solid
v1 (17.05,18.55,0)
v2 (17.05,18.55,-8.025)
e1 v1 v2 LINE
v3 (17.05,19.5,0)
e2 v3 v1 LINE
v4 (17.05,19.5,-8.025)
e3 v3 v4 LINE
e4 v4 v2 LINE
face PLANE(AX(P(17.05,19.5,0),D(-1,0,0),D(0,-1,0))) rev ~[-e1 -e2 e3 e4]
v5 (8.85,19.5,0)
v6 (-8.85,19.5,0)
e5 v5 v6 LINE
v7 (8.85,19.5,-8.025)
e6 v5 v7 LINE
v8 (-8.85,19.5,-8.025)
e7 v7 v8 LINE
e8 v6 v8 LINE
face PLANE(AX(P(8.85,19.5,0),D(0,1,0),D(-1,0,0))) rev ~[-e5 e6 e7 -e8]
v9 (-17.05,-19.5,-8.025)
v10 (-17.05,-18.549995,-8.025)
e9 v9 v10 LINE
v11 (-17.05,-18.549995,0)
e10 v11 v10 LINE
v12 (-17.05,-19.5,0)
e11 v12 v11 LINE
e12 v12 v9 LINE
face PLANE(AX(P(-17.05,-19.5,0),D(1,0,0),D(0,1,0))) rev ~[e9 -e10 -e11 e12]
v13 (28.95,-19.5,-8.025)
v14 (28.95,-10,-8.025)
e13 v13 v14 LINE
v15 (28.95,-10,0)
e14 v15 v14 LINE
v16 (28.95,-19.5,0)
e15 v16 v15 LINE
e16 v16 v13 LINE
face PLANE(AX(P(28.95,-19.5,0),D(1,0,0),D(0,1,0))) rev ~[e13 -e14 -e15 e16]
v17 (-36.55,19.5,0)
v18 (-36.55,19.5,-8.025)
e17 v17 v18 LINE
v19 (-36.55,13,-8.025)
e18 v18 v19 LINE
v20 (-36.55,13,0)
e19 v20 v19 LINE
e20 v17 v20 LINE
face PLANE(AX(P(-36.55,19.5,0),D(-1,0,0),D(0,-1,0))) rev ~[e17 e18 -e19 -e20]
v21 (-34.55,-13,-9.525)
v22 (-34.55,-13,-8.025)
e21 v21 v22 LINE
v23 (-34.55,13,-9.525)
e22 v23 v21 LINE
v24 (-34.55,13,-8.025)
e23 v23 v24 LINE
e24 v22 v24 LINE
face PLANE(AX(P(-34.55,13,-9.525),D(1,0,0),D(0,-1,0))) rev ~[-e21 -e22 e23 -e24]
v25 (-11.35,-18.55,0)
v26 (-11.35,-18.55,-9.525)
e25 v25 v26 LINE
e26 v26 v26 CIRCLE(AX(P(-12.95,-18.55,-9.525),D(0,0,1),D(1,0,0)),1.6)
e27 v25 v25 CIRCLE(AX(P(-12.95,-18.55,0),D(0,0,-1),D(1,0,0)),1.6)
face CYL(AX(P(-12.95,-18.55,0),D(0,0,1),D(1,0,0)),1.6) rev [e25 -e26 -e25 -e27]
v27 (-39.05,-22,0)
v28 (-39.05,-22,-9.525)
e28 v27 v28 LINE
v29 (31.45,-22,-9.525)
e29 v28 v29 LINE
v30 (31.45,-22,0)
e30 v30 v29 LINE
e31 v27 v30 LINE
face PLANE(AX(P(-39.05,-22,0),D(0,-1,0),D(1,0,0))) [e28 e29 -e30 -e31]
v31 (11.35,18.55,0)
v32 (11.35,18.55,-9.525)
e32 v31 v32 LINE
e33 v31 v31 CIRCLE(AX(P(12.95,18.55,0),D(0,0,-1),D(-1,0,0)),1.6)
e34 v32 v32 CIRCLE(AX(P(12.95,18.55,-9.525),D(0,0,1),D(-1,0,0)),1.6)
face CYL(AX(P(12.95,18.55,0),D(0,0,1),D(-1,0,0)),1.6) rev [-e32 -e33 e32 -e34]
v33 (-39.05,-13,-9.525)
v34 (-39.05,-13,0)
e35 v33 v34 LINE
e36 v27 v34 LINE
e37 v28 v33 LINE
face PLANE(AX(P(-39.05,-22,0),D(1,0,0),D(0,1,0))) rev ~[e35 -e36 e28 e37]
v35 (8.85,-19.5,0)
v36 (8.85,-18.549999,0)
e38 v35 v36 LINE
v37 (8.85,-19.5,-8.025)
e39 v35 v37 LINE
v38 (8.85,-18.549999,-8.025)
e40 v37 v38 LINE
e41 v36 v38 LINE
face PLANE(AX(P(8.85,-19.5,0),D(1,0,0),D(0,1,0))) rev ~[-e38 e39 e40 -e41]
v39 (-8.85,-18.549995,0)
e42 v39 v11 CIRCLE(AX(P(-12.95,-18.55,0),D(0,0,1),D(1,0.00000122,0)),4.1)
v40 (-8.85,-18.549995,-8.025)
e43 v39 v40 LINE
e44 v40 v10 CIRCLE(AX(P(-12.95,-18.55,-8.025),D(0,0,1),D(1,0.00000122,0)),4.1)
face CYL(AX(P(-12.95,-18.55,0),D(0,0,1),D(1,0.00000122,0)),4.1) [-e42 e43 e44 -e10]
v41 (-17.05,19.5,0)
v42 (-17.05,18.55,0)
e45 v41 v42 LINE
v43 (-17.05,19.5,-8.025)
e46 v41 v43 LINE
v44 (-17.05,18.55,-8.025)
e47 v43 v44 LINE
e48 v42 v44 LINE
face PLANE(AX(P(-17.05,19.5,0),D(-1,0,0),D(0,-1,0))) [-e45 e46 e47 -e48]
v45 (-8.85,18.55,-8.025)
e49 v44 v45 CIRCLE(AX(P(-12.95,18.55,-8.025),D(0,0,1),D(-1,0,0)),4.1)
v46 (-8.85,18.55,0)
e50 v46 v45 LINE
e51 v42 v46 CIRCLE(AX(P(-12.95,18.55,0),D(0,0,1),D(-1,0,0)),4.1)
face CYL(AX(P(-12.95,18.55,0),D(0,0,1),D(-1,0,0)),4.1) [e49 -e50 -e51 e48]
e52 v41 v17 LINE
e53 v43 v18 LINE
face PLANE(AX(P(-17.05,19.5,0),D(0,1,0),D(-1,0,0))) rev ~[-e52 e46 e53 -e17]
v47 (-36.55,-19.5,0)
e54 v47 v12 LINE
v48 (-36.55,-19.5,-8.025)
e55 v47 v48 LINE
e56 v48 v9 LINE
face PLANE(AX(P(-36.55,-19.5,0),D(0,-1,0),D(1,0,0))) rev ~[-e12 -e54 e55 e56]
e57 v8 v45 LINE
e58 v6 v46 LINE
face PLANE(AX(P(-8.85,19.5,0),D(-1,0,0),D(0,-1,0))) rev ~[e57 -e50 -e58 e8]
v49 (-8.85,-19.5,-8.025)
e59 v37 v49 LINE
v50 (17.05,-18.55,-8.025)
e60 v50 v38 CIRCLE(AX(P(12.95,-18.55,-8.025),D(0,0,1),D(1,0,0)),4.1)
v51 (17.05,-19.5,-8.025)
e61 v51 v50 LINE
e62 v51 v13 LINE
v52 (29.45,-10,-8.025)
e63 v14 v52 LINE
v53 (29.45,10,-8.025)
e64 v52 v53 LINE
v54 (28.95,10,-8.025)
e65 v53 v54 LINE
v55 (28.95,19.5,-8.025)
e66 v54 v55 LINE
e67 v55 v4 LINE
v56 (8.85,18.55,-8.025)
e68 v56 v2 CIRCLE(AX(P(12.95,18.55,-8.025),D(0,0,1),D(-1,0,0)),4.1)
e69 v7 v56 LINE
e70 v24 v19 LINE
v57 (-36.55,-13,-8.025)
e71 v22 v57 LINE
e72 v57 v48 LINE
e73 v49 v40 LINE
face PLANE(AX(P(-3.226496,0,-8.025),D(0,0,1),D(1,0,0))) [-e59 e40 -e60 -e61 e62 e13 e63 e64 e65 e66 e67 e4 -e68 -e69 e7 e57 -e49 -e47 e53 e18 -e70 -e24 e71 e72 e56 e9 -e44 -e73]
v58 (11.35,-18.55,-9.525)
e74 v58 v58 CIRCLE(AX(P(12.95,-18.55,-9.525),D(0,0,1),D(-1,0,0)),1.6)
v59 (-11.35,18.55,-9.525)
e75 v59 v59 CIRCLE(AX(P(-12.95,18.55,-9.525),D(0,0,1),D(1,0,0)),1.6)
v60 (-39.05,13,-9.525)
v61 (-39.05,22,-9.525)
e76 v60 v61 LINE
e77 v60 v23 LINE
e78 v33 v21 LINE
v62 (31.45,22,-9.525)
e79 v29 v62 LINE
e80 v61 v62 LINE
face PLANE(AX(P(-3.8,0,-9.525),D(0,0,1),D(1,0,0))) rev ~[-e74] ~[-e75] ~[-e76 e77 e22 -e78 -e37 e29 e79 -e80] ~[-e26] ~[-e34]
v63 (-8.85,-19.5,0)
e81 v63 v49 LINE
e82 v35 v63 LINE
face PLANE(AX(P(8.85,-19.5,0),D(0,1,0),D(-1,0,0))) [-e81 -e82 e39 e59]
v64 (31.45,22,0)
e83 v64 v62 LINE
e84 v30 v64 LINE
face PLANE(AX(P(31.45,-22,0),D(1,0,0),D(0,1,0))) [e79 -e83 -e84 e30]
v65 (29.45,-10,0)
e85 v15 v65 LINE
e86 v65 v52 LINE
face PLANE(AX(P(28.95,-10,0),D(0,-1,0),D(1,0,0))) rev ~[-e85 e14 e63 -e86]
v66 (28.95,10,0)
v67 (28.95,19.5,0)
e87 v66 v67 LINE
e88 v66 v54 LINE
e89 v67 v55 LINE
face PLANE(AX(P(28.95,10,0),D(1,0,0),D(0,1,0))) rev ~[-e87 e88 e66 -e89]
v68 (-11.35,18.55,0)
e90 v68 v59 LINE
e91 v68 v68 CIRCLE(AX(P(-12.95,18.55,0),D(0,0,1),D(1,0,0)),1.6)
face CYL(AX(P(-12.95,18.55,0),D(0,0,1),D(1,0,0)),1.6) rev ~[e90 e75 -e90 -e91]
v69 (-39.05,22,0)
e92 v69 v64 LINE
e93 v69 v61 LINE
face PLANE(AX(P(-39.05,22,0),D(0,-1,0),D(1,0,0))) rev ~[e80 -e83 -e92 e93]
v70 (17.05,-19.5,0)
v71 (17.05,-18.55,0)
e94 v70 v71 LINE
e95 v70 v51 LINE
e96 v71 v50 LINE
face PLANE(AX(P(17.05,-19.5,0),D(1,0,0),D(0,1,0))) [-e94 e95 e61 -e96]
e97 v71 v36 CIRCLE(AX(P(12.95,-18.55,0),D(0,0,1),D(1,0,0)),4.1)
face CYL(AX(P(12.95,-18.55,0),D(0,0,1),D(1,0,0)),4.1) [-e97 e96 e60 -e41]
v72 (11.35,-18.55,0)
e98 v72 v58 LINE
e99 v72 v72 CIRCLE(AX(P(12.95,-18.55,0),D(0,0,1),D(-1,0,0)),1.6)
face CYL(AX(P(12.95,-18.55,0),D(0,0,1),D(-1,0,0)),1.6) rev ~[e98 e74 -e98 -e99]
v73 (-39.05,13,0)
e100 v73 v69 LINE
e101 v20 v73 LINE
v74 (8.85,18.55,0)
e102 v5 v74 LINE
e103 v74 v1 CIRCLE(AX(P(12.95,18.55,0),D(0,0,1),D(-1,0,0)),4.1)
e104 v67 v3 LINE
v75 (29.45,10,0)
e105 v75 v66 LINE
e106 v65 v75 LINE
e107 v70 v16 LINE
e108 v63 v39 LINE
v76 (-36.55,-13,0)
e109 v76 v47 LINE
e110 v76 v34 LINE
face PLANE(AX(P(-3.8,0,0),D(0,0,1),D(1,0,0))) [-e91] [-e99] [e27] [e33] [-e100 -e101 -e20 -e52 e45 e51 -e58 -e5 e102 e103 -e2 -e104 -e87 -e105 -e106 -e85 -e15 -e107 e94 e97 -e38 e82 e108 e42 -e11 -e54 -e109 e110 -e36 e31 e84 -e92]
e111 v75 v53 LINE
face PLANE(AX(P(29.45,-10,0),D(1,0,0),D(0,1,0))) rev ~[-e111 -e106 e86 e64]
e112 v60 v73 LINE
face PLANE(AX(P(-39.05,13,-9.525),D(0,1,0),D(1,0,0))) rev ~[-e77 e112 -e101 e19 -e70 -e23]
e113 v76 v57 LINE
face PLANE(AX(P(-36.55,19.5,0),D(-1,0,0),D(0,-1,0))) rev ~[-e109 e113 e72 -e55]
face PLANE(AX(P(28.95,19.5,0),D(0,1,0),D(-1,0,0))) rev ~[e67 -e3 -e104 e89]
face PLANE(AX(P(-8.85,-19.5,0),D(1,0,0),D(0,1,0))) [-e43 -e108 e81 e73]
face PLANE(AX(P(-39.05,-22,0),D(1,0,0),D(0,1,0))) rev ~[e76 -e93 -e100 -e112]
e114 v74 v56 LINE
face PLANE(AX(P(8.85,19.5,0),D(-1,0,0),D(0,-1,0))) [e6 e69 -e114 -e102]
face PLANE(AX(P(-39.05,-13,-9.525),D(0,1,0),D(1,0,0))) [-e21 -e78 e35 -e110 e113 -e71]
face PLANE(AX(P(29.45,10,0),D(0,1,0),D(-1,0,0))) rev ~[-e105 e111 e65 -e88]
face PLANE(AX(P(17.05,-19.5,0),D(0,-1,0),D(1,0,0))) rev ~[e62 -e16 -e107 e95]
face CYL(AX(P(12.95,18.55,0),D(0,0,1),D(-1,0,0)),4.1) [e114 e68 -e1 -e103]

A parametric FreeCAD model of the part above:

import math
import FreeCAD as App
import Part
import Sketcher

V = App.Vector
Q = App.Units.Quantity


def add_polygon(sketch, points):
    """Adds a closed chain of lines whose ends are joined by coincident constraints."""
    first, n = sketch.GeometryCount, len(points)
    for a, b in zip(points, points[1:] + points[:1]):
        sketch.addGeometry(Part.LineSegment(App.Vector(*a, 0), App.Vector(*b, 0)), False)
    for i in range(n):
        sketch.addConstraint(Sketcher.Constraint("Coincident", first + i, 2, first + (i + 1) % n, 1))

doc = App.newDocument("Part")
body = doc.addObject("PartDesign::Body", "Body")

# Sketch on XY plane
sketch1 = doc.addObject("Sketcher::SketchObject", "Sketch")
body.addObject(sketch1)
sketch1.AttachmentSupport = (doc.XY_Plane, [""])
sketch1.MapMode = "FlatFace"
add_polygon(sketch1, [(-39, 22), (-39, -22), (31, -22), (31, 22)])  # lines 0-3
sketch1.addConstraint([
    Sketcher.Constraint("Vertical", 0),
    Sketcher.Constraint("Horizontal", 1),
    Sketcher.Constraint("Vertical", 2),
    Sketcher.Constraint("Horizontal", 3),
    Sketcher.Constraint("DistanceY", 0, 2, 0, 1, Q("44 mm")),
    Sketcher.Constraint("DistanceX", 1, 1, 1, 2, Q("70.5 mm")),
    Sketcher.Constraint("DistanceY", 0, 2, -1, 1, Q("22 mm")),
    Sketcher.Constraint("DistanceX", 0, 2, -1, 1, Q("39.05 mm")),
])
pad1 = doc.addObject("PartDesign::Pad", "Pad")
body.addObject(pad1)
pad1.Profile = sketch1
pad1.Length = 9.525
pad1.Reversed = True

# Sketch on XY plane
sketch2 = doc.addObject("Sketcher::SketchObject", "Sketch001")
body.addObject(sketch2)
sketch2.AttachmentSupport = (doc.XY_Plane, [""])
sketch2.MapMode = "FlatFace"
sketch2.addGeometry(Part.Circle(V(-12.9, 18.6, 0), V(0, 0, 1), 1.6), False)
sketch2.addConstraint([
    Sketcher.Constraint("Diameter", 0, Q("3.2 mm")),
    Sketcher.Constraint("DistanceX", 0, 3, -1, 1, Q("12.95 mm")),
    Sketcher.Constraint("DistanceY", -1, 1, 0, 3, Q("18.55 mm")),
])
pocket1 = doc.addObject("PartDesign::Pocket", "Pocket")
body.addObject(pocket1)
pocket1.Profile = sketch2
pocket1.Type = "ThroughAll"

# Sketch on XY plane
sketch3 = doc.addObject("Sketcher::SketchObject", "Sketch002")
body.addObject(sketch3)
sketch3.AttachmentSupport = (doc.XY_Plane, [""])
sketch3.MapMode = "FlatFace"
sketch3.addGeometry(Part.Circle(V(12.9, 18.6, 0), V(0, 0, 1), 1.6), False)
sketch3.addConstraint([
    Sketcher.Constraint("Diameter", 0, Q("3.2 mm")),
    Sketcher.Constraint("DistanceX", -1, 1, 0, 3, Q("12.95 mm")),
    Sketcher.Constraint("DistanceY", -1, 1, 0, 3, Q("18.55 mm")),
])
pocket2 = doc.addObject("PartDesign::Pocket", "Pocket001")
body.addObject(pocket2)
pocket2.Profile = sketch3
pocket2.Type = "ThroughAll"
doc.recompute()

mirrored = doc.addObject("PartDesign::Mirrored", "Mirrored")
body.addObject(mirrored)
mirrored.Originals = [pocket1, pocket2]
mirrored.MirrorPlane = (doc.XZ_Plane, [""])
body.Tip = mirrored

# Sketch on XY plane
sketch4 = doc.addObject("Sketcher::SketchObject", "Sketch003")
body.addObject(sketch4)
sketch4.AttachmentSupport = (doc.XY_Plane, [""])
sketch4.MapMode = "FlatFace"
sketch4.addGeometry([
    Part.LineSegment(V(29.4, -10, 0), V(29.4, 10, 0)),  # 0
    Part.LineSegment(V(29.4, 10, 0), V(28.9, 10, 0)),  # 1
    Part.LineSegment(V(28.9, 10, 0), V(28.9, 19.5, 0)),  # 2
    Part.LineSegment(V(28.9, 19.5, 0), V(17.1, 19.5, 0)),  # 3
    Part.LineSegment(V(17.1, 19.5, 0), V(17.1, 18.6, 0)),  # 4
    Part.ArcOfCircle(Part.Circle(V(12.9, 18.6, 0), V(0, 0, 1), 4.1), math.radians(180), math.radians(360)),  # 5
    Part.LineSegment(V(8.8, 18.6, 0), V(8.8, 19.5, 0)),  # 6
    Part.LineSegment(V(8.8, 19.5, 0), V(-8.8, 19.5, 0)),  # 7
    Part.LineSegment(V(-8.8, 19.5, 0), V(-8.8, 18.6, 0)),  # 8
    Part.ArcOfCircle(Part.Circle(V(-12.9, 18.6, 0), V(0, 0, 1), 4.1), math.radians(180), math.radians(360)),  # 9
    Part.LineSegment(V(-17.1, 18.6, 0), V(-17.1, 19.5, 0)),  # 10
    Part.LineSegment(V(-17.1, 19.5, 0), V(-36.5, 19.5, 0)),  # 11
    Part.LineSegment(V(-36.5, 19.5, 0), V(-36.5, -19.5, 0)),  # 12
    Part.LineSegment(V(-36.5, -19.5, 0), V(-17.1, -19.5, 0)),  # 13
    Part.LineSegment(V(-17.1, -19.5, 0), V(-17.1, -18.5, 0)),  # 14
    Part.ArcOfCircle(Part.Circle(V(-12.9, -18.6, 0), V(0, 0, 1), 4.1), math.radians(0), math.radians(180)),  # 15
    Part.LineSegment(V(-8.8, -18.5, 0), V(-8.8, -19.5, 0)),  # 16
    Part.LineSegment(V(-8.8, -19.5, 0), V(8.8, -19.5, 0)),  # 17
    Part.LineSegment(V(8.8, -19.5, 0), V(8.8, -18.5, 0)),  # 18
    Part.ArcOfCircle(Part.Circle(V(12.9, -18.6, 0), V(0, 0, 1), 4.1), math.radians(0), math.radians(180)),  # 19
    Part.LineSegment(V(17.1, -18.6, 0), V(17.1, -19.5, 0)),  # 20
    Part.LineSegment(V(17.1, -19.5, 0), V(28.9, -19.5, 0)),  # 21
    Part.LineSegment(V(28.9, -19.5, 0), V(28.9, -10, 0)),  # 22
    Part.LineSegment(V(28.9, -10, 0), V(29.4, -10, 0)),  # 23
], False)
sketch4.addConstraint([
    Sketcher.Constraint("Coincident", 0, 2, 1, 1),
    Sketcher.Constraint("Coincident", 1, 2, 2, 1),
    Sketcher.Constraint("Coincident", 2, 2, 3, 1),
    Sketcher.Constraint("Coincident", 3, 2, 4, 1),
    Sketcher.Constraint("Tangent", 4, 2, 5, 2),
    Sketcher.Constraint("Tangent", 5, 1, 6, 1),
    Sketcher.Constraint("Coincident", 6, 2, 7, 1),
    Sketcher.Constraint("Coincident", 7, 2, 8, 1),
    Sketcher.Constraint("Tangent", 8, 2, 9, 2),
    Sketcher.Constraint("Tangent", 9, 1, 10, 1),
    Sketcher.Constraint("Coincident", 10, 2, 11, 1),
    Sketcher.Constraint("Coincident", 11, 2, 12, 1),
    Sketcher.Constraint("Coincident", 12, 2, 13, 1),
    Sketcher.Constraint("Coincident", 13, 2, 14, 1),
    Sketcher.Constraint("Tangent", 14, 2, 15, 2),
    Sketcher.Constraint("Tangent", 15, 1, 16, 1),
    Sketcher.Constraint("Coincident", 16, 2, 17, 1),
    Sketcher.Constraint("Coincident", 17, 2, 18, 1),
    Sketcher.Constraint("Tangent", 18, 2, 19, 2),
    Sketcher.Constraint("Tangent", 19, 1, 20, 1),
    Sketcher.Constraint("Coincident", 20, 2, 21, 1),
    Sketcher.Constraint("Coincident", 21, 2, 22, 1),
    Sketcher.Constraint("Coincident", 22, 2, 23, 1),
    Sketcher.Constraint("Coincident", 23, 2, 0, 1),
    Sketcher.Constraint("Vertical", 0),
    Sketcher.Constraint("Horizontal", 1),
    Sketcher.Constraint("Vertical", 2),
    Sketcher.Constraint("Horizontal", 3),
    Sketcher.Constraint("Vertical", 4),
    Sketcher.Constraint("Vertical", 6),
    Sketcher.Constraint("Horizontal", 7),
    Sketcher.Constraint("Vertical", 8),
    Sketcher.Constraint("Vertical", 10),
    Sketcher.Constraint("Horizontal", 11),
    Sketcher.Constraint("Vertical", 12),
    Sketcher.Constraint("Horizontal", 13),
    Sketcher.Constraint("Vertical", 14),
    Sketcher.Constraint("Vertical", 16),
    Sketcher.Constraint("Horizontal", 17),
    Sketcher.Constraint("Vertical", 18),
    Sketcher.Constraint("Vertical", 20),
    Sketcher.Constraint("Horizontal", 21),
    Sketcher.Constraint("Vertical", 22),
    Sketcher.Constraint("Horizontal", 23),
    Sketcher.Constraint("Equal", 5, 9),
    Sketcher.Constraint("Equal", 9, 15),
    Sketcher.Constraint("Equal", 15, 19),
    Sketcher.Constraint("Symmetric", 5, 3, 15, 3, -1, 1),
    Sketcher.Constraint("Symmetric", 9, 3, 19, 3, -1, 1),
    Sketcher.Constraint("Symmetric", 5, 3, 9, 3, -2),
    Sketcher.Constraint("Symmetric", 2, 2, 21, 2, -1),
    Sketcher.Constraint("Horizontal", 3, 2, 6, 2),
    Sketcher.Constraint("Horizontal", 7, 2, 10, 2),
    Sketcher.Constraint("Horizontal", 13, 2, 16, 2),
    Sketcher.Constraint("Horizontal", 17, 2, 20, 2),
    Sketcher.Constraint("Equal", 2, 22),
    Sketcher.Constraint("Radius", 5, Q("4.1 mm")),
    Sketcher.Constraint("DistanceY", 0, 1, 0, 2, Q("20 mm")),
    Sketcher.Constraint("DistanceY", 12, 2, 12, 1, Q("39 mm")),
    Sketcher.Constraint("DistanceX", 1, 2, 1, 1, Q("0.5 mm")),
    Sketcher.Constraint("DistanceX", 3, 2, 3, 1, Q("11.9 mm")),
    Sketcher.Constraint("DistanceX", 7, 2, 7, 1, Q("17.7 mm")),
    Sketcher.Constraint("DistanceX", 11, 2, 11, 1, Q("19.5 mm")),
    Sketcher.Constraint("DistanceY", 4, 2, 4, 1, Q("0.95 mm")),
])
pocket3 = doc.addObject("PartDesign::Pocket", "Pocket002")
body.addObject(pocket3)
pocket3.Profile = sketch4
pocket3.Length = 8.025

# Sketch on XY plane
sketch5 = doc.addObject("Sketcher::SketchObject", "Sketch004")
body.addObject(sketch5)
sketch5.AttachmentSupport = (doc.XY_Plane, [""])
sketch5.MapMode = "FlatFace"
sketch5.AttachmentOffset = App.Placement(V(0, 0, -9.525), App.Rotation())
add_polygon(sketch5, [(-39, -13), (-39, 13), (-34.5, 13), (-34.5, -13)])  # lines 0-3
sketch5.addConstraint([
    Sketcher.Constraint("Vertical", 0),
    Sketcher.Constraint("Horizontal", 1),
    Sketcher.Constraint("Vertical", 2),
    Sketcher.Constraint("Horizontal", 3),
    Sketcher.Constraint("DistanceY", 0, 1, 0, 2, Q("26 mm")),
    Sketcher.Constraint("DistanceX", 1, 1, 1, 2, Q("4.5 mm")),
    Sketcher.Constraint("DistanceY", -1, 1, 0, 2, Q("13 mm")),
    Sketcher.Constraint("DistanceX", 0, 2, -1, 1, Q("39.05 mm")),
])
pocket4 = doc.addObject("PartDesign::Pocket", "Pocket003")
body.addObject(pocket4)
pocket4.Profile = sketch5
pocket4.Type = "ThroughAll"
pocket4.Reversed = True

doc.recompute()
